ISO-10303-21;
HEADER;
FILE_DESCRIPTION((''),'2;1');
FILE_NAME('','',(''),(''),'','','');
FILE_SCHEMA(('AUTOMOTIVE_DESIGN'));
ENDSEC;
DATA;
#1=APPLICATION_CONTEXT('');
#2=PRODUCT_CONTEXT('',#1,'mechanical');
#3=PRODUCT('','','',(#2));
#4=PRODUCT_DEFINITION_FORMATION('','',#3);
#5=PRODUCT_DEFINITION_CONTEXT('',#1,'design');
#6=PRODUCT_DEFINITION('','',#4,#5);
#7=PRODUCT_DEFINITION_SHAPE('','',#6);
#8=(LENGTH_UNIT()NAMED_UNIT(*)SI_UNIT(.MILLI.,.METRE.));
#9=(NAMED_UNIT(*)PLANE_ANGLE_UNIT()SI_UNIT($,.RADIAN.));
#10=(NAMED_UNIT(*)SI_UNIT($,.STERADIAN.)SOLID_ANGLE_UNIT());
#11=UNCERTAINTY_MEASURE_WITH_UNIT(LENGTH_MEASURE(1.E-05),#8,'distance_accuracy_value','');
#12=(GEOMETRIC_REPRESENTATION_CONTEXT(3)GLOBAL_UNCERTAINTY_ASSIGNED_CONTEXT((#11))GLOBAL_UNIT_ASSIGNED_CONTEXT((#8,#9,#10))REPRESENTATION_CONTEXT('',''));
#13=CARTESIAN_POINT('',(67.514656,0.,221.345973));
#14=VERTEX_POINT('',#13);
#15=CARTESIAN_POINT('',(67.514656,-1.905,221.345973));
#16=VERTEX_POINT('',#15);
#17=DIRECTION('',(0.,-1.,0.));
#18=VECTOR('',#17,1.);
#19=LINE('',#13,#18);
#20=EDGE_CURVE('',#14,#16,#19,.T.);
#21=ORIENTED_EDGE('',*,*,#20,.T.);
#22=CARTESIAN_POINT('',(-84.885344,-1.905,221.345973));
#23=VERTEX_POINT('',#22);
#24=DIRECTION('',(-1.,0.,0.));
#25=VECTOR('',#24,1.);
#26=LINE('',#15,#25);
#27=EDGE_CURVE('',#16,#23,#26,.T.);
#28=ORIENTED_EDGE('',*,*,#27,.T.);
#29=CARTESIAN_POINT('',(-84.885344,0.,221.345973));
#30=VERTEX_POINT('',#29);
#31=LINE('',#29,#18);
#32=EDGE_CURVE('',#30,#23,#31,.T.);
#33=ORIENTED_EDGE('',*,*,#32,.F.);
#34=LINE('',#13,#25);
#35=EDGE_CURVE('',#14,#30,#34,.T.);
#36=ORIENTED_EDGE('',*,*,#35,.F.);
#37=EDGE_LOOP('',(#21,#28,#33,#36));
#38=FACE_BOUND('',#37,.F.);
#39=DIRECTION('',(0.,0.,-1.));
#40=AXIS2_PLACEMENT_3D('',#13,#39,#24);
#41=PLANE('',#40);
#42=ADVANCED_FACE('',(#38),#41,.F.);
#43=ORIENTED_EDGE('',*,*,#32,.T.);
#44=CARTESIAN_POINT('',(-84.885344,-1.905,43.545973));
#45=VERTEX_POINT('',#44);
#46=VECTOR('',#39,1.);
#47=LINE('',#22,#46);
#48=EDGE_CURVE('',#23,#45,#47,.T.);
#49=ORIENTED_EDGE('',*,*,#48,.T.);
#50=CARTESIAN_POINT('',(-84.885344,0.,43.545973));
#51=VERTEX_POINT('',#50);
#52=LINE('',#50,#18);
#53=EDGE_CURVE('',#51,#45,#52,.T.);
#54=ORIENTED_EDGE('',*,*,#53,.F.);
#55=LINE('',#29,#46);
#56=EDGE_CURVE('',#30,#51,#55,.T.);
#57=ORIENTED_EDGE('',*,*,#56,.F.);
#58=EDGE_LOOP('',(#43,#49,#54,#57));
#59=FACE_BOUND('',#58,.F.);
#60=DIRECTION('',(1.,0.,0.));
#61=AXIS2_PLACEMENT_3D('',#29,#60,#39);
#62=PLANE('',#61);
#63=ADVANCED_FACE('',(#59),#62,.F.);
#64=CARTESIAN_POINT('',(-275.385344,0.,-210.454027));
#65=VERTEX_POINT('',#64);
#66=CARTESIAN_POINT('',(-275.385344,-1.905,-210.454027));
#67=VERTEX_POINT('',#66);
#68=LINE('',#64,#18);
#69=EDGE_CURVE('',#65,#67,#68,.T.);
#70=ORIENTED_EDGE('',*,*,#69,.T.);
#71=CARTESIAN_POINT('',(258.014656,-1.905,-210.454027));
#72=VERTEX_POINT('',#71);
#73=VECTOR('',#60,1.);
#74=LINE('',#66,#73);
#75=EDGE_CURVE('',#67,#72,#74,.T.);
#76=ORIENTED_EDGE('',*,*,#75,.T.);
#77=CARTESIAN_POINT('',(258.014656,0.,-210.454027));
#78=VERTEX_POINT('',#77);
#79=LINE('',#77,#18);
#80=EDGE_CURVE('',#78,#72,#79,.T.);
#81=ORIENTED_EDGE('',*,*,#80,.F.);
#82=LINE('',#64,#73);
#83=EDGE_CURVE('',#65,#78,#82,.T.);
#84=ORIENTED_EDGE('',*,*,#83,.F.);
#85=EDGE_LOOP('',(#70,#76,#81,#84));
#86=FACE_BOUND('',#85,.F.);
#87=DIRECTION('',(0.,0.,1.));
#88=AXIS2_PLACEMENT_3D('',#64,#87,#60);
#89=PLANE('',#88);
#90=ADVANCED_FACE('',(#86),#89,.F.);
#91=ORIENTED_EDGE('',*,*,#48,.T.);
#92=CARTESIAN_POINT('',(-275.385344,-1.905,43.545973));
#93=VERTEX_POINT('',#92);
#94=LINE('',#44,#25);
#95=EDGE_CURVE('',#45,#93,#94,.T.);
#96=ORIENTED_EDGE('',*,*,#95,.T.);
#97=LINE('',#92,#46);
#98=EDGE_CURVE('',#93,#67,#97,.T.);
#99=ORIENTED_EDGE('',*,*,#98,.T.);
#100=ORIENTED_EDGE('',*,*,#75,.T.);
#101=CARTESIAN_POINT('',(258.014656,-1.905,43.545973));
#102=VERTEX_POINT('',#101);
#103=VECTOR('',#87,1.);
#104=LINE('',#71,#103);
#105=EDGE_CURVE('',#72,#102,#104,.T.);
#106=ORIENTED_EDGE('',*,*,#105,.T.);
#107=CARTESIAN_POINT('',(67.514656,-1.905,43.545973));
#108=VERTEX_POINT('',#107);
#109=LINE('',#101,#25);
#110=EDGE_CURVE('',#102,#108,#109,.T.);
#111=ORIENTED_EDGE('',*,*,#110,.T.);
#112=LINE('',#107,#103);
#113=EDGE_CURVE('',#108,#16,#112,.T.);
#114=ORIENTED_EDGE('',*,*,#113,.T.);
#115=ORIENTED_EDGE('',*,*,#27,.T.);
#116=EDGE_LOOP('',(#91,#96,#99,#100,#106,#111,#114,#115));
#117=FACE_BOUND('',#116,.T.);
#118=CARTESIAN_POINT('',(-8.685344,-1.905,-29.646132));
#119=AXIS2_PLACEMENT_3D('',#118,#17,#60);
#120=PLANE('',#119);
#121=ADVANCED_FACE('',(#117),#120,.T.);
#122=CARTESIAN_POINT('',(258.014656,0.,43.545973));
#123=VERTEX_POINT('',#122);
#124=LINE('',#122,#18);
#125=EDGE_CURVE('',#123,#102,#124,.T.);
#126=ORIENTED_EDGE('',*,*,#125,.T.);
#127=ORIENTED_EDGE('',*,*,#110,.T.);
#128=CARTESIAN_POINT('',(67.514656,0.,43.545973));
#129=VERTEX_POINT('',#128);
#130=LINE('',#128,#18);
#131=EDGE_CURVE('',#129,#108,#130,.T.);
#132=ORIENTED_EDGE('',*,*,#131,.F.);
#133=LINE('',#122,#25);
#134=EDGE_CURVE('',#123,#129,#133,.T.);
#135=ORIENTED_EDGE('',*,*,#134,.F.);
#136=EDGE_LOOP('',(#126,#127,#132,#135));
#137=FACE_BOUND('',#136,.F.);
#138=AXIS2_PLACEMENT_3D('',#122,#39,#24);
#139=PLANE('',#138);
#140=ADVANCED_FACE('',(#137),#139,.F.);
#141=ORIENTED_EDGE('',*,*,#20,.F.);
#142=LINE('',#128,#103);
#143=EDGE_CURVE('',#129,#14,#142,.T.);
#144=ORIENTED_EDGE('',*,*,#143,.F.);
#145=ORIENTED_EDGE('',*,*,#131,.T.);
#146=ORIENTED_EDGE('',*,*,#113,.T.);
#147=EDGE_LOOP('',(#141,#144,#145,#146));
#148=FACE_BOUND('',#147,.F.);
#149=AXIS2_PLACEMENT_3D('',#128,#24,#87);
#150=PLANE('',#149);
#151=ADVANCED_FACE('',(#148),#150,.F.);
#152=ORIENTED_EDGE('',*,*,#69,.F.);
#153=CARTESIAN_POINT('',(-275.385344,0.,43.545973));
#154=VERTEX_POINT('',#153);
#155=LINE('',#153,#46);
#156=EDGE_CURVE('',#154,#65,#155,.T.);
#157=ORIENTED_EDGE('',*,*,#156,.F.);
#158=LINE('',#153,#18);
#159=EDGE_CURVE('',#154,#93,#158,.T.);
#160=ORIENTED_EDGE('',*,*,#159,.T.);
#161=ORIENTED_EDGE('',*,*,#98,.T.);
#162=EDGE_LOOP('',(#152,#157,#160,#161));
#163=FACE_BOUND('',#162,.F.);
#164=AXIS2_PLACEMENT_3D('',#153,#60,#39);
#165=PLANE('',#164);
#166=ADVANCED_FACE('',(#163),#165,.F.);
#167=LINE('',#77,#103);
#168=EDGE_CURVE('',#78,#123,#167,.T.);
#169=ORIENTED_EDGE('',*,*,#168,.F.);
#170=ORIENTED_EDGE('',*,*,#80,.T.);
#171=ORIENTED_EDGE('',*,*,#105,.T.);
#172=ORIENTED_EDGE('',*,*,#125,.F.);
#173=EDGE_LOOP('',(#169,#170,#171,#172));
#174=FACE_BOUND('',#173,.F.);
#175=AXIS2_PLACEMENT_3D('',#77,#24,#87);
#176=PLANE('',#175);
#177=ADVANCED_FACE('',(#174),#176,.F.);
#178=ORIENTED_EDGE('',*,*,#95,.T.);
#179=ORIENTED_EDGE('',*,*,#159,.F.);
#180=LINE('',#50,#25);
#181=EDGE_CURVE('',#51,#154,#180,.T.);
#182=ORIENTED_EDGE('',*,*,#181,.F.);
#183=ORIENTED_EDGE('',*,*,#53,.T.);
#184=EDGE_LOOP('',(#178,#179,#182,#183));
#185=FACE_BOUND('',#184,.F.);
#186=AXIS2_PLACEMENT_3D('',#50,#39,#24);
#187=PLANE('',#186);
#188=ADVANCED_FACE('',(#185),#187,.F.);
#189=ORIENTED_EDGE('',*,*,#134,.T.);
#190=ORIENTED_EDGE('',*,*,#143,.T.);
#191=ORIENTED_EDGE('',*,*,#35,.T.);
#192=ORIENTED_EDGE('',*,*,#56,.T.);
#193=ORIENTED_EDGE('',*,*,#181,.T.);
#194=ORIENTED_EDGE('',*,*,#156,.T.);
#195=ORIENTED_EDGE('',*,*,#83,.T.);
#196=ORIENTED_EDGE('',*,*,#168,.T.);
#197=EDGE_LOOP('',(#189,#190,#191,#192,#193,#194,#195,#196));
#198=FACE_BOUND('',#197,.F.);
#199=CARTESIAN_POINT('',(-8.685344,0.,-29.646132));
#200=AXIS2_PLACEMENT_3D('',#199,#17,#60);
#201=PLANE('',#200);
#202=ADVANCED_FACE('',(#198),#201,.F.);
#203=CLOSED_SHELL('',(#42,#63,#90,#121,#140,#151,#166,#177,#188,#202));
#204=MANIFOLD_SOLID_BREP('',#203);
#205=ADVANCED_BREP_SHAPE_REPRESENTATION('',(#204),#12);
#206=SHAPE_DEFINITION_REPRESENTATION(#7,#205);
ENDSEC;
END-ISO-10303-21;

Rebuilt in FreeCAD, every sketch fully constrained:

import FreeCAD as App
import Part
import Sketcher
from FreeCAD import Vector
Q = App.Units.Quantity


def add_polygon(sketch, points):
    """Adds a closed chain of lines whose ends are joined by coincident constraints."""
    first, n = sketch.GeometryCount, len(points)
    for a, b in zip(points, points[1:] + points[:1]):
        sketch.addGeometry(Part.LineSegment(App.Vector(*a, 0), App.Vector(*b, 0)), False)
    for i in range(n):
        sketch.addConstraint(Sketcher.Constraint("Coincident", first + i, 2, first + (i + 1) % n, 1))

doc = App.newDocument("Part")
body = doc.addObject("PartDesign::Body", "Body")

# Sketch on XZ plane
sketch1 = body.newObject("Sketcher::SketchObject", "Sketch")
sketch1.AttachmentSupport = (doc.getObject("XZ_Plane"), [""])
sketch1.MapMode = "FlatFace"
add_polygon(sketch1, [(-275.385344, 43.545973), (-275.385344, -210.454027), (258.014656, -210.454027), (258.014656, 43.545973), (67.514656, 43.545973), (67.514656, 221.345973), (-84.885344, 221.345973), (-84.885344, 43.545973)])  # lines 0-7
add_polygon(sketch1, [(-82.980344, 41.640973), (-82.980344, 219.440973), (65.609656, 219.440973), (65.609656, 41.640973), (256.109656, 41.640973), (256.109656, -208.549027), (-273.480344, -208.549027), (-273.480344, 41.640973)])  # lines 8-15
sketch1.addConstraint([
    Sketcher.Constraint("Vertical", 0),
    Sketcher.Constraint("Horizontal", 1),
    Sketcher.Constraint("Vertical", 2),
    Sketcher.Constraint("Horizontal", 3),
    Sketcher.Constraint("Vertical", 4),
    Sketcher.Constraint("Horizontal", 5),
    Sketcher.Constraint("Vertical", 6),
    Sketcher.Constraint("Horizontal", 7),
    Sketcher.Constraint("Vertical", 8),
    Sketcher.Constraint("Horizontal", 9),
    Sketcher.Constraint("Vertical", 10),
    Sketcher.Constraint("Horizontal", 11),
    Sketcher.Constraint("Vertical", 12),
    Sketcher.Constraint("Horizontal", 13),
    Sketcher.Constraint("Vertical", 14),
    Sketcher.Constraint("Horizontal", 15),
    Sketcher.Constraint("Horizontal", 3, 2, 6, 2),
    Sketcher.Constraint("Horizontal", 11, 2, 14, 2),
    Sketcher.Constraint("Equal", 3, 7),
    Sketcher.Constraint("Equal", 7, 11),
    Sketcher.Constraint("Equal", 11, 15),
    Sketcher.Constraint("Equal", 6, 8),
    Sketcher.Constraint("DistanceX", 1, 1, 1, 2, Q("21 in")),
    Sketcher.Constraint("DistanceX", 5, 2, 5, 1, Q("6 in")),
    Sketcher.Constraint("DistanceY", 0, 2, 0, 1, Q("10 in")),
    Sketcher.Constraint("DistanceY", 4, 1, 4, 2, Q("7 in")),
    Sketcher.Constraint("DistanceX", 9, 1, 9, 2, Q("5.85 in")),
    Sketcher.Constraint("DistanceY", 12, 2, 12, 1, Q("9.85 in")),
    Sketcher.Constraint("DistanceX", 5, 2, 8, 2, Q("0.075 in")),
    Sketcher.Constraint("DistanceY", 8, 2, 5, 2, Q("0.075 in")),
    Sketcher.Constraint("DistanceX", 0, 2, -1, 1, 275.385344),
    Sketcher.Constraint("DistanceY", 0, 2, -1, 1, 210.454027),
])
pad1 = body.newObject("PartDesign::Pad", "Pad")
pad1.Profile = sketch1
pad1.Length = Q("0.075 in")

# Sketch on XZ plane
sketch2 = body.newObject("Sketcher::SketchObject", "Sketch001")
sketch2.AttachmentSupport = (doc.getObject("XZ_Plane"), [""])
sketch2.MapMode = "FlatFace"
add_polygon(sketch2, [(-275.385344, 43.545973), (-275.385344, -210.454027), (258.014656, -210.454027), (258.014656, 43.545973), (67.514656, 43.545973), (67.514656, 221.345973), (-84.885344, 221.345973), (-84.885344, 43.545973)])  # lines 0-7
sketch2.addConstraint([
    Sketcher.Constraint("Vertical", 0),
    Sketcher.Constraint("Horizontal", 1),
    Sketcher.Constraint("Vertical", 2),
    Sketcher.Constraint("Horizontal", 3),
    Sketcher.Constraint("Vertical", 4),
    Sketcher.Constraint("Horizontal", 5),
    Sketcher.Constraint("Vertical", 6),
    Sketcher.Constraint("Horizontal", 7),
    Sketcher.Constraint("Horizontal", 3, 2, 6, 2),
    Sketcher.Constraint("Equal", 3, 7),
    Sketcher.Constraint("DistanceX", 1, 1, 1, 2, Q("21 in")),
    Sketcher.Constraint("DistanceX", 5, 2, 5, 1, Q("6 in")),
    Sketcher.Constraint("DistanceY", 0, 2, 0, 1, Q("10 in")),
    Sketcher.Constraint("DistanceY", 4, 1, 4, 2, Q("7 in")),
    Sketcher.Constraint("DistanceX", 0, 2, -1, 1, 275.385344),
    Sketcher.Constraint("DistanceY", 0, 2, -1, 1, 210.454027),
])
pad2 = body.newObject("PartDesign::Pad", "Pad001")
pad2.Profile = sketch2
pad2.Length = Q("0.075 in")

doc.recompute()
